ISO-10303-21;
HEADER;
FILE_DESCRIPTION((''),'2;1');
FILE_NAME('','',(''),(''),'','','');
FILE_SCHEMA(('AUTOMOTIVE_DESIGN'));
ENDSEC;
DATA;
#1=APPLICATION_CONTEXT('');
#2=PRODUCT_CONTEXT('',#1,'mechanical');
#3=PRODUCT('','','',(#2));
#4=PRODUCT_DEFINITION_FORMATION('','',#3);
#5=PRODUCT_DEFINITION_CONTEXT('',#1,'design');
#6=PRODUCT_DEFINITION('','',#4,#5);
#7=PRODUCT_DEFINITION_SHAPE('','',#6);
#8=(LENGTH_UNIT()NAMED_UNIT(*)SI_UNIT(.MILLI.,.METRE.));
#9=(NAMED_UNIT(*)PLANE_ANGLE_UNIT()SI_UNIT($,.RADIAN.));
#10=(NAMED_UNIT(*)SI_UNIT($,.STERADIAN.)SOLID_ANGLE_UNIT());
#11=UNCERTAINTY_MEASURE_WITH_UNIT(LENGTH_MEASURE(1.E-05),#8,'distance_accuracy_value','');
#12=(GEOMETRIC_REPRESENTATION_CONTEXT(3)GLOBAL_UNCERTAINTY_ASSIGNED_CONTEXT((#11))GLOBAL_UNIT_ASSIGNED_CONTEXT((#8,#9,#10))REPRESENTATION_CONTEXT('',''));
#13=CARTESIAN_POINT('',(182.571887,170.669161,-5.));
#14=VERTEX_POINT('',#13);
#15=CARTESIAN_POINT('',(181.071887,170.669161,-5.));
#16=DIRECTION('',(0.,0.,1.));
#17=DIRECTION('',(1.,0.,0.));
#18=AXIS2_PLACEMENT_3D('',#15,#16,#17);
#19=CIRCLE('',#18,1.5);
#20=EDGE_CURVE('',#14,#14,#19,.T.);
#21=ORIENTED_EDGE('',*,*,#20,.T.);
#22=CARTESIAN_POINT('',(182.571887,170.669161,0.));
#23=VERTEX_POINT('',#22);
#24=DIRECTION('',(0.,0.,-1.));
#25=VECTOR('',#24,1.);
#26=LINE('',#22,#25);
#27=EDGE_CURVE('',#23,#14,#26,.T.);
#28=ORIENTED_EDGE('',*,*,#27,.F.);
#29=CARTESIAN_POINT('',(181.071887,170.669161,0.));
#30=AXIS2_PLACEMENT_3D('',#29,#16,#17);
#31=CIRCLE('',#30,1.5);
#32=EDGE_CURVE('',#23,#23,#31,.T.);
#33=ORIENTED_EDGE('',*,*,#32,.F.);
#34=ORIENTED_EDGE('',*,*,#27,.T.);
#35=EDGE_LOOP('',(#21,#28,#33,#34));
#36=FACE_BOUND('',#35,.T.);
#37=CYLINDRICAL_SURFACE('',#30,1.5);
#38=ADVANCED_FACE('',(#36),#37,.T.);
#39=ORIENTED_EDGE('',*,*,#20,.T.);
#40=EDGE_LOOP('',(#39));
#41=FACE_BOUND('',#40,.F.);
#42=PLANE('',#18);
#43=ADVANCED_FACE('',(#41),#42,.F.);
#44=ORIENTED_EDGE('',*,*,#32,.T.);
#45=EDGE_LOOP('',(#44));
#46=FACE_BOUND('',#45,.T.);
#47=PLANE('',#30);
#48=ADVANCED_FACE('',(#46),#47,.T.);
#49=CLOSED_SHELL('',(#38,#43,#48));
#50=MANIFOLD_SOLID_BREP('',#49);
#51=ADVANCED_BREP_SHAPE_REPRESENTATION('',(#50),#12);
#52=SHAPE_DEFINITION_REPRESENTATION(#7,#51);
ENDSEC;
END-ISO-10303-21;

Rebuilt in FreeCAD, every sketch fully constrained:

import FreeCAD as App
import Part
import Sketcher

doc = App.newDocument("Part")
body = doc.addObject("PartDesign::Body", "Body")

# Sketch on XY plane
sketch1 = doc.addObject("Sketcher::SketchObject", "Sketch")
body.addObject(sketch1)
sketch1.AttachmentSupport = (doc.XY_Plane, [""])
sketch1.MapMode = "FlatFace"
sketch1.addGeometry(Part.Circle(App.Vector(181.071887, 170.669161, 0), App.Vector(0, 0, 1), 1.5), False)
sketch1.addConstraint(Sketcher.Constraint("Diameter", 0, 3.0))
sketch1.addConstraint(Sketcher.Constraint("DistanceY", -1, 1, 0, 3, 170.669161))
sketch1.addConstraint(Sketcher.Constraint("DistanceX", -1, 1, 0, 3, 181.071887))
pad1 = doc.addObject("PartDesign::Pad", "Pad")
body.addObject(pad1)
pad1.Profile = sketch1
pad1.Length = 5
pad1.Reversed = True

doc.recompute()
